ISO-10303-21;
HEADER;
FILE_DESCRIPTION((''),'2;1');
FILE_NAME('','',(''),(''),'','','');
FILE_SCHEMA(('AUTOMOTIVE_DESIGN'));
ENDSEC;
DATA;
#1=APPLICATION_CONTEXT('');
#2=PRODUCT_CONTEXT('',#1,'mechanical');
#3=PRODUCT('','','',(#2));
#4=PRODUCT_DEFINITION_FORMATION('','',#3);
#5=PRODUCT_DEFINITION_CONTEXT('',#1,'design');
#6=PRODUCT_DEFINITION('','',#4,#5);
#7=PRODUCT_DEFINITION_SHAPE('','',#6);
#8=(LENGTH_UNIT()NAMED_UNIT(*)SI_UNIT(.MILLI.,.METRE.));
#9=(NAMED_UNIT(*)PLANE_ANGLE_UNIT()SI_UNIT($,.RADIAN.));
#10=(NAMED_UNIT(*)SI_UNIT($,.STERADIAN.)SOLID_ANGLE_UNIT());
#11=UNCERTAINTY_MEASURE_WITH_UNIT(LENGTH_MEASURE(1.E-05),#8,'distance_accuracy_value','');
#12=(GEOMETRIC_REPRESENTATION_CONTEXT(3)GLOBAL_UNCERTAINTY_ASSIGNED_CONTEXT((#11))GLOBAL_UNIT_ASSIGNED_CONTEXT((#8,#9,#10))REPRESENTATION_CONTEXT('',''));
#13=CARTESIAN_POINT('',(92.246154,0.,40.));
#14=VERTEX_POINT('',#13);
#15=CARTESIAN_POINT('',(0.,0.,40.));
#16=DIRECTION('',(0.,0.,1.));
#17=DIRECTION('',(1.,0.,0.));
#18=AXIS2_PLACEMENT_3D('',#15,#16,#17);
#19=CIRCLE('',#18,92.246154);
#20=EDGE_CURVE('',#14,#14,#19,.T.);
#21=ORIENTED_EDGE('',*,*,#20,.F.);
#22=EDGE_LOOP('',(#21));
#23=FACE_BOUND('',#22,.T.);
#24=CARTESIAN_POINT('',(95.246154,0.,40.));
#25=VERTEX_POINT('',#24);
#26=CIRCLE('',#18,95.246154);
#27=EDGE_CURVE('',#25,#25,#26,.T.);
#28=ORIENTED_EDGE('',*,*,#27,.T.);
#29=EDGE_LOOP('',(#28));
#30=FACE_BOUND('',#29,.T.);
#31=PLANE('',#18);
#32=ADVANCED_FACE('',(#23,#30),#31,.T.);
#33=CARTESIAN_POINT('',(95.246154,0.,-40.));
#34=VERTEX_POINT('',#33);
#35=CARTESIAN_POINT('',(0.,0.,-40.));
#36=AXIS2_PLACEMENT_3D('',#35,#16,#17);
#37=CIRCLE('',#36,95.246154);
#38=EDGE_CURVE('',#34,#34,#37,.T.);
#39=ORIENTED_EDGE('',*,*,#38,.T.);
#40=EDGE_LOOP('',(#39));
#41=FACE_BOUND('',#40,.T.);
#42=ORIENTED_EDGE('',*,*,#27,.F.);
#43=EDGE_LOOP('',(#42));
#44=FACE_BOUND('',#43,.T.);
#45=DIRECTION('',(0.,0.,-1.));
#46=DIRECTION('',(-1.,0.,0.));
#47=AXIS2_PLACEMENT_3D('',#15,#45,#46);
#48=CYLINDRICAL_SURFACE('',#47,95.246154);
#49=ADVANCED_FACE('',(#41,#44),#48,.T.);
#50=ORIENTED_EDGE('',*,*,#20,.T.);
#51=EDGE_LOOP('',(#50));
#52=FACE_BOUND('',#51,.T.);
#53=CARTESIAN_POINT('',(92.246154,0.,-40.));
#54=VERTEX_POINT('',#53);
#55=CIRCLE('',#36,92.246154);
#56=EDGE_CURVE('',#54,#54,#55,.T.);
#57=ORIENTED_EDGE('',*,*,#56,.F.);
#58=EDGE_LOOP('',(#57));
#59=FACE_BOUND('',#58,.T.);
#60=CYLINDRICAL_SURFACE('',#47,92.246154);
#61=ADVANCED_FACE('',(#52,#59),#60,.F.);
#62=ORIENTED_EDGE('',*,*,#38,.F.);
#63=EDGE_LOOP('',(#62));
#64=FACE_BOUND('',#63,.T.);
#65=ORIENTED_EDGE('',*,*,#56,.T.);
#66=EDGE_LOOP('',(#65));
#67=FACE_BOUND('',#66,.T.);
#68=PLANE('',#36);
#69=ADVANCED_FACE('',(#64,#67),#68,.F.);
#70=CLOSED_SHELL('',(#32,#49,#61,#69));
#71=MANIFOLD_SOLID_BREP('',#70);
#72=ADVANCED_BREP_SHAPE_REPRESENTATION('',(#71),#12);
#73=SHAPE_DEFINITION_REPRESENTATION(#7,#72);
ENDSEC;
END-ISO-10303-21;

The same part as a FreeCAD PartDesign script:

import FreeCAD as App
import Part
import Sketcher

V = App.Vector
Q = App.Units.Quantity

doc = App.newDocument("Part")
body = doc.addObject("PartDesign::Body", "Body")

# Sketch on XY plane
sketch1 = body.newObject("Sketcher::SketchObject", "Sketch")
sketch1.AttachmentSupport = (doc.getObject("XY_Plane"), [""])
sketch1.MapMode = "FlatFace"
sketch1.AttachmentOffset = App.Placement(V(0, 0, -40), App.Rotation())
sketch1.addGeometry([
    Part.Circle(V(0, 0, 0), V(0, 0, 1), 95),
    Part.Circle(V(0, 0, 0), V(0, 0, 1), 92),
], False)
sketch1.addConstraint([
    Sketcher.Constraint("Coincident", 0, 3, -1, 1),
    Sketcher.Constraint("Coincident", 1, 3, -1, 1),
    Sketcher.Constraint("Diameter", 0, Q("190.492308 mm")),
    Sketcher.Constraint("Diameter", 1, Q("184.492308 mm")),
])
pad1 = body.newObject("PartDesign::Pad", "Pad")
pad1.Profile = sketch1
pad1.Length = 80

doc.recompute()
